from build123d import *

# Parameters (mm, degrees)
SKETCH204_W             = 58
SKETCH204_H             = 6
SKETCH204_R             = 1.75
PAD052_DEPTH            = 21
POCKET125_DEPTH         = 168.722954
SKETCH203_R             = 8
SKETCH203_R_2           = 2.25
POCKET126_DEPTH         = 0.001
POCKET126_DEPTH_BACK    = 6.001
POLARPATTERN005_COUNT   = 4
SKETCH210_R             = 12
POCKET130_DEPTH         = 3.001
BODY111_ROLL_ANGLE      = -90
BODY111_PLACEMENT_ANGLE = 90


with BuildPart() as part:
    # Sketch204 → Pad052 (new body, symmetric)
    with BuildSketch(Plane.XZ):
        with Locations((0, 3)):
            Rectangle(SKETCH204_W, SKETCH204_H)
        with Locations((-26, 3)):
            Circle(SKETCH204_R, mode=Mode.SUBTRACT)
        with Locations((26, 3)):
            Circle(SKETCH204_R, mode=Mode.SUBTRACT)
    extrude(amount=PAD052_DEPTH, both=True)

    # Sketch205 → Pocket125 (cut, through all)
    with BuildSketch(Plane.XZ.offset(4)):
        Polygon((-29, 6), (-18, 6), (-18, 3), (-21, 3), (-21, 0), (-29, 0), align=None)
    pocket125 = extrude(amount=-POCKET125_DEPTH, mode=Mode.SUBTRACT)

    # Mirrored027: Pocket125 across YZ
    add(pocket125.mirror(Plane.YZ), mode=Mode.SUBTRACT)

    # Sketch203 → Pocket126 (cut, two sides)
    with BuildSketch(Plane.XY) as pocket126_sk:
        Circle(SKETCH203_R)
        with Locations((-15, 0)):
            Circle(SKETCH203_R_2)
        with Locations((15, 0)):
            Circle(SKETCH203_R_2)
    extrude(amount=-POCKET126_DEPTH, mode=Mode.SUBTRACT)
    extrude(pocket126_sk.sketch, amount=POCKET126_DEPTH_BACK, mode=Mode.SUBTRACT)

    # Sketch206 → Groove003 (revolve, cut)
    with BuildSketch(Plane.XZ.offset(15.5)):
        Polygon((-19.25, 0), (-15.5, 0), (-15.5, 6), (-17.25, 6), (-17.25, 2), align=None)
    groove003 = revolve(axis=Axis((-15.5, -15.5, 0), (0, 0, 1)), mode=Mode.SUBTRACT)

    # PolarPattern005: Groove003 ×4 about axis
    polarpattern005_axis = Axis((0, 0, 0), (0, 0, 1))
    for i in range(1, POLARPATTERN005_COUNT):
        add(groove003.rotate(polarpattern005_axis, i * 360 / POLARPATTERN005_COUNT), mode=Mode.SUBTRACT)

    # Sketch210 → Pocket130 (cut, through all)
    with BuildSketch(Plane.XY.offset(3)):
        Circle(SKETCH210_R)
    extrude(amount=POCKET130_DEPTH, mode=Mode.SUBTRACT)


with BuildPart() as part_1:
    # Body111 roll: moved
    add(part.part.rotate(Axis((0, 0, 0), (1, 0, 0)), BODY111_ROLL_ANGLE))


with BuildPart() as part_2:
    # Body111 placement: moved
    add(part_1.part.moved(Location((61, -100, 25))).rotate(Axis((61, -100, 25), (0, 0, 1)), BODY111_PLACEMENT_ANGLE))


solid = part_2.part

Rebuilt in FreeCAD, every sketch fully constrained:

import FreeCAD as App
import Part
import Sketcher
from FreeCAD import Vector
Q = App.Units.Quantity


def add_polygon(sketch, points):
    """Adds a closed chain of lines whose ends are joined by coincident constraints."""
    first, n = sketch.GeometryCount, len(points)
    for a, b in zip(points, points[1:] + points[:1]):
        sketch.addGeometry(Part.LineSegment(App.Vector(*a, 0), App.Vector(*b, 0)), False)
    for i in range(n):
        sketch.addConstraint(Sketcher.Constraint("Coincident", first + i, 2, first + (i + 1) % n, 1))

doc = App.newDocument("Part")
body = doc.addObject("PartDesign::Body", "Body")

# Sketch on XZ plane
sketch1 = body.newObject("Sketcher::SketchObject", "Sketch")
sketch1.AttachmentSupport = (doc.getObject("XZ_Plane"), [""])
sketch1.MapMode = "FlatFace"
add_polygon(sketch1, [(-29, 6), (-29, 0), (29, 0), (29, 6)])  # lines 0-3
sketch1.addGeometry(Part.Circle(Vector(-26, 3, 0), Vector(0, 0, 1), 1.8), False)  # 4
sketch1.addGeometry(Part.Circle(Vector(26, 3, 0), Vector(0, 0, 1), 1.8), False)  # 5
sketch1.addConstraint([
    Sketcher.Constraint("Vertical", 0),
    Sketcher.Constraint("Horizontal", 1),
    Sketcher.Constraint("Vertical", 2),
    Sketcher.Constraint("Horizontal", 3),
    Sketcher.Constraint("Equal", 4, 5),
    Sketcher.Constraint("Symmetric", 0, 2, 1, 2, -1, 1),
    Sketcher.Constraint("Symmetric", 4, 3, 5, 3, -2),
    Sketcher.Constraint("Diameter", 4, Q("3.5 mm")),
    Sketcher.Constraint("DistanceX", 1, 1, 1, 2, Q("58 mm")),
    Sketcher.Constraint("DistanceY", 0, 2, 0, 1, Q("6 mm")),
    Sketcher.Constraint("DistanceX", 4, 3, -1, 1, Q("26 mm")),
    Sketcher.Constraint("DistanceY", -1, 1, 4, 3, Q("3 mm")),
])
pad1 = body.newObject("PartDesign::Pad", "Pad")
pad1.Profile = sketch1
pad1.Length = 42
pad1.Midplane = True

# Sketch on XZ plane
sketch2 = body.newObject("Sketcher::SketchObject", "Sketch001")
sketch2.AttachmentSupport = (doc.getObject("XZ_Plane"), [""])
sketch2.MapMode = "FlatFace"
sketch2.AttachmentOffset = App.Placement(Vector(0, 0, 4), App.Rotation())
add_polygon(sketch2, [(-18, 6), (-29, 6), (-29, 0), (-21, 0), (-21, 3), (-18, 3)])  # lines 0-5
sketch2.addConstraint([
    Sketcher.Constraint("Horizontal", 0),
    Sketcher.Constraint("Vertical", 1),
    Sketcher.Constraint("Horizontal", 2),
    Sketcher.Constraint("Vertical", 3),
    Sketcher.Constraint("Horizontal", 4),
    Sketcher.Constraint("Vertical", 5),
    Sketcher.Constraint("PointOnObject", 1, 2, -1),
    Sketcher.Constraint("Equal", 4, 3),
    Sketcher.Constraint("Equal", 3, 5),
    Sketcher.Constraint("DistanceX", 0, 2, 0, 1, Q("11 mm")),
    Sketcher.Constraint("DistanceX", 2, 1, 2, 2, Q("8 mm")),
    Sketcher.Constraint("DistanceX", 0, 2, -1, 1, Q("29 mm")),
])
pocket1 = body.newObject("PartDesign::Pocket", "Pocket")
pocket1.Profile = sketch2
pocket1.Type = "ThroughAll"
doc.recompute()

mirrored = body.newObject("PartDesign::Mirrored", "Mirrored")
mirrored.Originals = [pocket1]
mirrored.MirrorPlane = (doc.getObject("YZ_Plane"), [""])
body.Tip = mirrored

# Sketch on XY plane
sketch3 = body.newObject("Sketcher::SketchObject", "Sketch002")
sketch3.AttachmentSupport = (doc.getObject("XY_Plane"), [""])
sketch3.MapMode = "FlatFace"
sketch3.addGeometry([
    Part.Circle(Vector(0, 0, 0), Vector(0, 0, 1), 8),
    Part.Circle(Vector(-15, 0, 0), Vector(0, 0, 1), 2.2),
    Part.Circle(Vector(15, 0, 0), Vector(0, 0, 1), 2.2),
], False)
sketch3.addConstraint([
    Sketcher.Constraint("Coincident", 0, 3, -1, 1),
    Sketcher.Constraint("Equal", 1, 2),
    Sketcher.Constraint("Symmetric", 1, 3, 2, 3, -1, 1),
    Sketcher.Constraint("PointOnObject", 1, 3, -1),
    Sketcher.Constraint("Diameter", 0, Q("16 mm")),
    Sketcher.Constraint("Diameter", 1, Q("4.5 mm")),
    Sketcher.Constraint("DistanceX", 1, 3, -1, 1, Q("15 mm")),
])
pocket2 = body.newObject("PartDesign::Pocket", "Pocket001")
pocket2.Profile = sketch3
pocket2.Type = "ThroughAll"
pocket2.Midplane = True

# Sketch on XZ plane
sketch4 = body.newObject("Sketcher::SketchObject", "Sketch003")
sketch4.AttachmentSupport = (doc.getObject("XZ_Plane"), [""])
sketch4.MapMode = "FlatFace"
sketch4.AttachmentOffset = App.Placement(Vector(0, 0, 15.5), App.Rotation())
add_polygon(sketch4, [(-19.2, 0), (-15.5, 0), (-15.5, 6), (-17.2, 6), (-17.2, 2)])  # lines 0-4
sketch4.addGeometry(Part.LineSegment(Vector(-15.5, 0, 0), Vector(-15.5, 6, 0)), True)  # axis
sketch4.addConstraint([
    Sketcher.Constraint("Horizontal", 0),
    Sketcher.Constraint("Vertical", 1),
    Sketcher.Constraint("Horizontal", 2),
    Sketcher.Constraint("Vertical", 3),
    Sketcher.Constraint("Vertical", 5),
    Sketcher.Constraint("Coincident", 5, 1, 0, 2),
    Sketcher.Constraint("PointOnObject", 0, 2, -1),
    Sketcher.Constraint("Horizontal", 2, 2, 5, 2),
    Sketcher.Constraint("DistanceY", 1, 1, 1, 2, Q("6 mm")),
    Sketcher.Constraint("DistanceY", 3, 2, 3, 1, Q("4 mm")),
    Sketcher.Constraint("Angle", 4, Q("-135 deg")),
    Sketcher.Constraint("DistanceX", 0, 1, 0, 2, Q("3.75 mm")),
    Sketcher.Constraint("DistanceX", 0, 2, -1, 1, Q("15.5 mm")),
])
groove = body.newObject("PartDesign::Groove", "Groove")
groove.Profile = sketch4
groove.ReferenceAxis = (sketch4, ["Axis0"])
groove.Angle = 360
doc.recompute()

polarpattern = body.newObject("PartDesign::PolarPattern", "PolarPattern")
polarpattern.Originals = [groove]
polarpattern.Axis = (doc.getObject("Z_Axis"), [""])
polarpattern.Angle = 360
polarpattern.Occurrences = 4
body.Tip = polarpattern

# Sketch on XY plane
sketch5 = body.newObject("Sketcher::SketchObject", "Sketch004")
sketch5.AttachmentSupport = (doc.getObject("XY_Plane"), [""])
sketch5.MapMode = "FlatFace"
sketch5.AttachmentOffset = App.Placement(Vector(0, 0, 3), App.Rotation())
sketch5.addGeometry(Part.Circle(Vector(0, 0, 0), Vector(0, 0, 1), 12), False)
sketch5.addConstraint([
    Sketcher.Constraint("Coincident", 0, 3, -1, 1),
    Sketcher.Constraint("Diameter", 0, Q("24 mm")),
])
pocket3 = body.newObject("PartDesign::Pocket", "Pocket002")
pocket3.Profile = sketch5
pocket3.Type = "ThroughAll"
pocket3.Reversed = True
body2 = doc.addObject("PartDesign::Body", "Body001")
doc.recompute()

body.Placement = App.Placement(Vector(0, 0, 0), App.Rotation(Vector(1, 0, 0), 270))
boolean = body2.newObject("PartDesign::Boolean", "Boolean")
boolean.Type = "Fuse"
boolean.addObjects([body])
body3 = doc.addObject("PartDesign::Body", "Body002")
doc.recompute()

body2.Placement = App.Placement(Vector(61, -100, 25), App.Rotation(Vector(0, 0, 1), 90))
boolean2 = body3.newObject("PartDesign::Boolean", "Boolean001")
boolean2.Type = "Fuse"
boolean2.addObjects([body2])

doc.recompute()
